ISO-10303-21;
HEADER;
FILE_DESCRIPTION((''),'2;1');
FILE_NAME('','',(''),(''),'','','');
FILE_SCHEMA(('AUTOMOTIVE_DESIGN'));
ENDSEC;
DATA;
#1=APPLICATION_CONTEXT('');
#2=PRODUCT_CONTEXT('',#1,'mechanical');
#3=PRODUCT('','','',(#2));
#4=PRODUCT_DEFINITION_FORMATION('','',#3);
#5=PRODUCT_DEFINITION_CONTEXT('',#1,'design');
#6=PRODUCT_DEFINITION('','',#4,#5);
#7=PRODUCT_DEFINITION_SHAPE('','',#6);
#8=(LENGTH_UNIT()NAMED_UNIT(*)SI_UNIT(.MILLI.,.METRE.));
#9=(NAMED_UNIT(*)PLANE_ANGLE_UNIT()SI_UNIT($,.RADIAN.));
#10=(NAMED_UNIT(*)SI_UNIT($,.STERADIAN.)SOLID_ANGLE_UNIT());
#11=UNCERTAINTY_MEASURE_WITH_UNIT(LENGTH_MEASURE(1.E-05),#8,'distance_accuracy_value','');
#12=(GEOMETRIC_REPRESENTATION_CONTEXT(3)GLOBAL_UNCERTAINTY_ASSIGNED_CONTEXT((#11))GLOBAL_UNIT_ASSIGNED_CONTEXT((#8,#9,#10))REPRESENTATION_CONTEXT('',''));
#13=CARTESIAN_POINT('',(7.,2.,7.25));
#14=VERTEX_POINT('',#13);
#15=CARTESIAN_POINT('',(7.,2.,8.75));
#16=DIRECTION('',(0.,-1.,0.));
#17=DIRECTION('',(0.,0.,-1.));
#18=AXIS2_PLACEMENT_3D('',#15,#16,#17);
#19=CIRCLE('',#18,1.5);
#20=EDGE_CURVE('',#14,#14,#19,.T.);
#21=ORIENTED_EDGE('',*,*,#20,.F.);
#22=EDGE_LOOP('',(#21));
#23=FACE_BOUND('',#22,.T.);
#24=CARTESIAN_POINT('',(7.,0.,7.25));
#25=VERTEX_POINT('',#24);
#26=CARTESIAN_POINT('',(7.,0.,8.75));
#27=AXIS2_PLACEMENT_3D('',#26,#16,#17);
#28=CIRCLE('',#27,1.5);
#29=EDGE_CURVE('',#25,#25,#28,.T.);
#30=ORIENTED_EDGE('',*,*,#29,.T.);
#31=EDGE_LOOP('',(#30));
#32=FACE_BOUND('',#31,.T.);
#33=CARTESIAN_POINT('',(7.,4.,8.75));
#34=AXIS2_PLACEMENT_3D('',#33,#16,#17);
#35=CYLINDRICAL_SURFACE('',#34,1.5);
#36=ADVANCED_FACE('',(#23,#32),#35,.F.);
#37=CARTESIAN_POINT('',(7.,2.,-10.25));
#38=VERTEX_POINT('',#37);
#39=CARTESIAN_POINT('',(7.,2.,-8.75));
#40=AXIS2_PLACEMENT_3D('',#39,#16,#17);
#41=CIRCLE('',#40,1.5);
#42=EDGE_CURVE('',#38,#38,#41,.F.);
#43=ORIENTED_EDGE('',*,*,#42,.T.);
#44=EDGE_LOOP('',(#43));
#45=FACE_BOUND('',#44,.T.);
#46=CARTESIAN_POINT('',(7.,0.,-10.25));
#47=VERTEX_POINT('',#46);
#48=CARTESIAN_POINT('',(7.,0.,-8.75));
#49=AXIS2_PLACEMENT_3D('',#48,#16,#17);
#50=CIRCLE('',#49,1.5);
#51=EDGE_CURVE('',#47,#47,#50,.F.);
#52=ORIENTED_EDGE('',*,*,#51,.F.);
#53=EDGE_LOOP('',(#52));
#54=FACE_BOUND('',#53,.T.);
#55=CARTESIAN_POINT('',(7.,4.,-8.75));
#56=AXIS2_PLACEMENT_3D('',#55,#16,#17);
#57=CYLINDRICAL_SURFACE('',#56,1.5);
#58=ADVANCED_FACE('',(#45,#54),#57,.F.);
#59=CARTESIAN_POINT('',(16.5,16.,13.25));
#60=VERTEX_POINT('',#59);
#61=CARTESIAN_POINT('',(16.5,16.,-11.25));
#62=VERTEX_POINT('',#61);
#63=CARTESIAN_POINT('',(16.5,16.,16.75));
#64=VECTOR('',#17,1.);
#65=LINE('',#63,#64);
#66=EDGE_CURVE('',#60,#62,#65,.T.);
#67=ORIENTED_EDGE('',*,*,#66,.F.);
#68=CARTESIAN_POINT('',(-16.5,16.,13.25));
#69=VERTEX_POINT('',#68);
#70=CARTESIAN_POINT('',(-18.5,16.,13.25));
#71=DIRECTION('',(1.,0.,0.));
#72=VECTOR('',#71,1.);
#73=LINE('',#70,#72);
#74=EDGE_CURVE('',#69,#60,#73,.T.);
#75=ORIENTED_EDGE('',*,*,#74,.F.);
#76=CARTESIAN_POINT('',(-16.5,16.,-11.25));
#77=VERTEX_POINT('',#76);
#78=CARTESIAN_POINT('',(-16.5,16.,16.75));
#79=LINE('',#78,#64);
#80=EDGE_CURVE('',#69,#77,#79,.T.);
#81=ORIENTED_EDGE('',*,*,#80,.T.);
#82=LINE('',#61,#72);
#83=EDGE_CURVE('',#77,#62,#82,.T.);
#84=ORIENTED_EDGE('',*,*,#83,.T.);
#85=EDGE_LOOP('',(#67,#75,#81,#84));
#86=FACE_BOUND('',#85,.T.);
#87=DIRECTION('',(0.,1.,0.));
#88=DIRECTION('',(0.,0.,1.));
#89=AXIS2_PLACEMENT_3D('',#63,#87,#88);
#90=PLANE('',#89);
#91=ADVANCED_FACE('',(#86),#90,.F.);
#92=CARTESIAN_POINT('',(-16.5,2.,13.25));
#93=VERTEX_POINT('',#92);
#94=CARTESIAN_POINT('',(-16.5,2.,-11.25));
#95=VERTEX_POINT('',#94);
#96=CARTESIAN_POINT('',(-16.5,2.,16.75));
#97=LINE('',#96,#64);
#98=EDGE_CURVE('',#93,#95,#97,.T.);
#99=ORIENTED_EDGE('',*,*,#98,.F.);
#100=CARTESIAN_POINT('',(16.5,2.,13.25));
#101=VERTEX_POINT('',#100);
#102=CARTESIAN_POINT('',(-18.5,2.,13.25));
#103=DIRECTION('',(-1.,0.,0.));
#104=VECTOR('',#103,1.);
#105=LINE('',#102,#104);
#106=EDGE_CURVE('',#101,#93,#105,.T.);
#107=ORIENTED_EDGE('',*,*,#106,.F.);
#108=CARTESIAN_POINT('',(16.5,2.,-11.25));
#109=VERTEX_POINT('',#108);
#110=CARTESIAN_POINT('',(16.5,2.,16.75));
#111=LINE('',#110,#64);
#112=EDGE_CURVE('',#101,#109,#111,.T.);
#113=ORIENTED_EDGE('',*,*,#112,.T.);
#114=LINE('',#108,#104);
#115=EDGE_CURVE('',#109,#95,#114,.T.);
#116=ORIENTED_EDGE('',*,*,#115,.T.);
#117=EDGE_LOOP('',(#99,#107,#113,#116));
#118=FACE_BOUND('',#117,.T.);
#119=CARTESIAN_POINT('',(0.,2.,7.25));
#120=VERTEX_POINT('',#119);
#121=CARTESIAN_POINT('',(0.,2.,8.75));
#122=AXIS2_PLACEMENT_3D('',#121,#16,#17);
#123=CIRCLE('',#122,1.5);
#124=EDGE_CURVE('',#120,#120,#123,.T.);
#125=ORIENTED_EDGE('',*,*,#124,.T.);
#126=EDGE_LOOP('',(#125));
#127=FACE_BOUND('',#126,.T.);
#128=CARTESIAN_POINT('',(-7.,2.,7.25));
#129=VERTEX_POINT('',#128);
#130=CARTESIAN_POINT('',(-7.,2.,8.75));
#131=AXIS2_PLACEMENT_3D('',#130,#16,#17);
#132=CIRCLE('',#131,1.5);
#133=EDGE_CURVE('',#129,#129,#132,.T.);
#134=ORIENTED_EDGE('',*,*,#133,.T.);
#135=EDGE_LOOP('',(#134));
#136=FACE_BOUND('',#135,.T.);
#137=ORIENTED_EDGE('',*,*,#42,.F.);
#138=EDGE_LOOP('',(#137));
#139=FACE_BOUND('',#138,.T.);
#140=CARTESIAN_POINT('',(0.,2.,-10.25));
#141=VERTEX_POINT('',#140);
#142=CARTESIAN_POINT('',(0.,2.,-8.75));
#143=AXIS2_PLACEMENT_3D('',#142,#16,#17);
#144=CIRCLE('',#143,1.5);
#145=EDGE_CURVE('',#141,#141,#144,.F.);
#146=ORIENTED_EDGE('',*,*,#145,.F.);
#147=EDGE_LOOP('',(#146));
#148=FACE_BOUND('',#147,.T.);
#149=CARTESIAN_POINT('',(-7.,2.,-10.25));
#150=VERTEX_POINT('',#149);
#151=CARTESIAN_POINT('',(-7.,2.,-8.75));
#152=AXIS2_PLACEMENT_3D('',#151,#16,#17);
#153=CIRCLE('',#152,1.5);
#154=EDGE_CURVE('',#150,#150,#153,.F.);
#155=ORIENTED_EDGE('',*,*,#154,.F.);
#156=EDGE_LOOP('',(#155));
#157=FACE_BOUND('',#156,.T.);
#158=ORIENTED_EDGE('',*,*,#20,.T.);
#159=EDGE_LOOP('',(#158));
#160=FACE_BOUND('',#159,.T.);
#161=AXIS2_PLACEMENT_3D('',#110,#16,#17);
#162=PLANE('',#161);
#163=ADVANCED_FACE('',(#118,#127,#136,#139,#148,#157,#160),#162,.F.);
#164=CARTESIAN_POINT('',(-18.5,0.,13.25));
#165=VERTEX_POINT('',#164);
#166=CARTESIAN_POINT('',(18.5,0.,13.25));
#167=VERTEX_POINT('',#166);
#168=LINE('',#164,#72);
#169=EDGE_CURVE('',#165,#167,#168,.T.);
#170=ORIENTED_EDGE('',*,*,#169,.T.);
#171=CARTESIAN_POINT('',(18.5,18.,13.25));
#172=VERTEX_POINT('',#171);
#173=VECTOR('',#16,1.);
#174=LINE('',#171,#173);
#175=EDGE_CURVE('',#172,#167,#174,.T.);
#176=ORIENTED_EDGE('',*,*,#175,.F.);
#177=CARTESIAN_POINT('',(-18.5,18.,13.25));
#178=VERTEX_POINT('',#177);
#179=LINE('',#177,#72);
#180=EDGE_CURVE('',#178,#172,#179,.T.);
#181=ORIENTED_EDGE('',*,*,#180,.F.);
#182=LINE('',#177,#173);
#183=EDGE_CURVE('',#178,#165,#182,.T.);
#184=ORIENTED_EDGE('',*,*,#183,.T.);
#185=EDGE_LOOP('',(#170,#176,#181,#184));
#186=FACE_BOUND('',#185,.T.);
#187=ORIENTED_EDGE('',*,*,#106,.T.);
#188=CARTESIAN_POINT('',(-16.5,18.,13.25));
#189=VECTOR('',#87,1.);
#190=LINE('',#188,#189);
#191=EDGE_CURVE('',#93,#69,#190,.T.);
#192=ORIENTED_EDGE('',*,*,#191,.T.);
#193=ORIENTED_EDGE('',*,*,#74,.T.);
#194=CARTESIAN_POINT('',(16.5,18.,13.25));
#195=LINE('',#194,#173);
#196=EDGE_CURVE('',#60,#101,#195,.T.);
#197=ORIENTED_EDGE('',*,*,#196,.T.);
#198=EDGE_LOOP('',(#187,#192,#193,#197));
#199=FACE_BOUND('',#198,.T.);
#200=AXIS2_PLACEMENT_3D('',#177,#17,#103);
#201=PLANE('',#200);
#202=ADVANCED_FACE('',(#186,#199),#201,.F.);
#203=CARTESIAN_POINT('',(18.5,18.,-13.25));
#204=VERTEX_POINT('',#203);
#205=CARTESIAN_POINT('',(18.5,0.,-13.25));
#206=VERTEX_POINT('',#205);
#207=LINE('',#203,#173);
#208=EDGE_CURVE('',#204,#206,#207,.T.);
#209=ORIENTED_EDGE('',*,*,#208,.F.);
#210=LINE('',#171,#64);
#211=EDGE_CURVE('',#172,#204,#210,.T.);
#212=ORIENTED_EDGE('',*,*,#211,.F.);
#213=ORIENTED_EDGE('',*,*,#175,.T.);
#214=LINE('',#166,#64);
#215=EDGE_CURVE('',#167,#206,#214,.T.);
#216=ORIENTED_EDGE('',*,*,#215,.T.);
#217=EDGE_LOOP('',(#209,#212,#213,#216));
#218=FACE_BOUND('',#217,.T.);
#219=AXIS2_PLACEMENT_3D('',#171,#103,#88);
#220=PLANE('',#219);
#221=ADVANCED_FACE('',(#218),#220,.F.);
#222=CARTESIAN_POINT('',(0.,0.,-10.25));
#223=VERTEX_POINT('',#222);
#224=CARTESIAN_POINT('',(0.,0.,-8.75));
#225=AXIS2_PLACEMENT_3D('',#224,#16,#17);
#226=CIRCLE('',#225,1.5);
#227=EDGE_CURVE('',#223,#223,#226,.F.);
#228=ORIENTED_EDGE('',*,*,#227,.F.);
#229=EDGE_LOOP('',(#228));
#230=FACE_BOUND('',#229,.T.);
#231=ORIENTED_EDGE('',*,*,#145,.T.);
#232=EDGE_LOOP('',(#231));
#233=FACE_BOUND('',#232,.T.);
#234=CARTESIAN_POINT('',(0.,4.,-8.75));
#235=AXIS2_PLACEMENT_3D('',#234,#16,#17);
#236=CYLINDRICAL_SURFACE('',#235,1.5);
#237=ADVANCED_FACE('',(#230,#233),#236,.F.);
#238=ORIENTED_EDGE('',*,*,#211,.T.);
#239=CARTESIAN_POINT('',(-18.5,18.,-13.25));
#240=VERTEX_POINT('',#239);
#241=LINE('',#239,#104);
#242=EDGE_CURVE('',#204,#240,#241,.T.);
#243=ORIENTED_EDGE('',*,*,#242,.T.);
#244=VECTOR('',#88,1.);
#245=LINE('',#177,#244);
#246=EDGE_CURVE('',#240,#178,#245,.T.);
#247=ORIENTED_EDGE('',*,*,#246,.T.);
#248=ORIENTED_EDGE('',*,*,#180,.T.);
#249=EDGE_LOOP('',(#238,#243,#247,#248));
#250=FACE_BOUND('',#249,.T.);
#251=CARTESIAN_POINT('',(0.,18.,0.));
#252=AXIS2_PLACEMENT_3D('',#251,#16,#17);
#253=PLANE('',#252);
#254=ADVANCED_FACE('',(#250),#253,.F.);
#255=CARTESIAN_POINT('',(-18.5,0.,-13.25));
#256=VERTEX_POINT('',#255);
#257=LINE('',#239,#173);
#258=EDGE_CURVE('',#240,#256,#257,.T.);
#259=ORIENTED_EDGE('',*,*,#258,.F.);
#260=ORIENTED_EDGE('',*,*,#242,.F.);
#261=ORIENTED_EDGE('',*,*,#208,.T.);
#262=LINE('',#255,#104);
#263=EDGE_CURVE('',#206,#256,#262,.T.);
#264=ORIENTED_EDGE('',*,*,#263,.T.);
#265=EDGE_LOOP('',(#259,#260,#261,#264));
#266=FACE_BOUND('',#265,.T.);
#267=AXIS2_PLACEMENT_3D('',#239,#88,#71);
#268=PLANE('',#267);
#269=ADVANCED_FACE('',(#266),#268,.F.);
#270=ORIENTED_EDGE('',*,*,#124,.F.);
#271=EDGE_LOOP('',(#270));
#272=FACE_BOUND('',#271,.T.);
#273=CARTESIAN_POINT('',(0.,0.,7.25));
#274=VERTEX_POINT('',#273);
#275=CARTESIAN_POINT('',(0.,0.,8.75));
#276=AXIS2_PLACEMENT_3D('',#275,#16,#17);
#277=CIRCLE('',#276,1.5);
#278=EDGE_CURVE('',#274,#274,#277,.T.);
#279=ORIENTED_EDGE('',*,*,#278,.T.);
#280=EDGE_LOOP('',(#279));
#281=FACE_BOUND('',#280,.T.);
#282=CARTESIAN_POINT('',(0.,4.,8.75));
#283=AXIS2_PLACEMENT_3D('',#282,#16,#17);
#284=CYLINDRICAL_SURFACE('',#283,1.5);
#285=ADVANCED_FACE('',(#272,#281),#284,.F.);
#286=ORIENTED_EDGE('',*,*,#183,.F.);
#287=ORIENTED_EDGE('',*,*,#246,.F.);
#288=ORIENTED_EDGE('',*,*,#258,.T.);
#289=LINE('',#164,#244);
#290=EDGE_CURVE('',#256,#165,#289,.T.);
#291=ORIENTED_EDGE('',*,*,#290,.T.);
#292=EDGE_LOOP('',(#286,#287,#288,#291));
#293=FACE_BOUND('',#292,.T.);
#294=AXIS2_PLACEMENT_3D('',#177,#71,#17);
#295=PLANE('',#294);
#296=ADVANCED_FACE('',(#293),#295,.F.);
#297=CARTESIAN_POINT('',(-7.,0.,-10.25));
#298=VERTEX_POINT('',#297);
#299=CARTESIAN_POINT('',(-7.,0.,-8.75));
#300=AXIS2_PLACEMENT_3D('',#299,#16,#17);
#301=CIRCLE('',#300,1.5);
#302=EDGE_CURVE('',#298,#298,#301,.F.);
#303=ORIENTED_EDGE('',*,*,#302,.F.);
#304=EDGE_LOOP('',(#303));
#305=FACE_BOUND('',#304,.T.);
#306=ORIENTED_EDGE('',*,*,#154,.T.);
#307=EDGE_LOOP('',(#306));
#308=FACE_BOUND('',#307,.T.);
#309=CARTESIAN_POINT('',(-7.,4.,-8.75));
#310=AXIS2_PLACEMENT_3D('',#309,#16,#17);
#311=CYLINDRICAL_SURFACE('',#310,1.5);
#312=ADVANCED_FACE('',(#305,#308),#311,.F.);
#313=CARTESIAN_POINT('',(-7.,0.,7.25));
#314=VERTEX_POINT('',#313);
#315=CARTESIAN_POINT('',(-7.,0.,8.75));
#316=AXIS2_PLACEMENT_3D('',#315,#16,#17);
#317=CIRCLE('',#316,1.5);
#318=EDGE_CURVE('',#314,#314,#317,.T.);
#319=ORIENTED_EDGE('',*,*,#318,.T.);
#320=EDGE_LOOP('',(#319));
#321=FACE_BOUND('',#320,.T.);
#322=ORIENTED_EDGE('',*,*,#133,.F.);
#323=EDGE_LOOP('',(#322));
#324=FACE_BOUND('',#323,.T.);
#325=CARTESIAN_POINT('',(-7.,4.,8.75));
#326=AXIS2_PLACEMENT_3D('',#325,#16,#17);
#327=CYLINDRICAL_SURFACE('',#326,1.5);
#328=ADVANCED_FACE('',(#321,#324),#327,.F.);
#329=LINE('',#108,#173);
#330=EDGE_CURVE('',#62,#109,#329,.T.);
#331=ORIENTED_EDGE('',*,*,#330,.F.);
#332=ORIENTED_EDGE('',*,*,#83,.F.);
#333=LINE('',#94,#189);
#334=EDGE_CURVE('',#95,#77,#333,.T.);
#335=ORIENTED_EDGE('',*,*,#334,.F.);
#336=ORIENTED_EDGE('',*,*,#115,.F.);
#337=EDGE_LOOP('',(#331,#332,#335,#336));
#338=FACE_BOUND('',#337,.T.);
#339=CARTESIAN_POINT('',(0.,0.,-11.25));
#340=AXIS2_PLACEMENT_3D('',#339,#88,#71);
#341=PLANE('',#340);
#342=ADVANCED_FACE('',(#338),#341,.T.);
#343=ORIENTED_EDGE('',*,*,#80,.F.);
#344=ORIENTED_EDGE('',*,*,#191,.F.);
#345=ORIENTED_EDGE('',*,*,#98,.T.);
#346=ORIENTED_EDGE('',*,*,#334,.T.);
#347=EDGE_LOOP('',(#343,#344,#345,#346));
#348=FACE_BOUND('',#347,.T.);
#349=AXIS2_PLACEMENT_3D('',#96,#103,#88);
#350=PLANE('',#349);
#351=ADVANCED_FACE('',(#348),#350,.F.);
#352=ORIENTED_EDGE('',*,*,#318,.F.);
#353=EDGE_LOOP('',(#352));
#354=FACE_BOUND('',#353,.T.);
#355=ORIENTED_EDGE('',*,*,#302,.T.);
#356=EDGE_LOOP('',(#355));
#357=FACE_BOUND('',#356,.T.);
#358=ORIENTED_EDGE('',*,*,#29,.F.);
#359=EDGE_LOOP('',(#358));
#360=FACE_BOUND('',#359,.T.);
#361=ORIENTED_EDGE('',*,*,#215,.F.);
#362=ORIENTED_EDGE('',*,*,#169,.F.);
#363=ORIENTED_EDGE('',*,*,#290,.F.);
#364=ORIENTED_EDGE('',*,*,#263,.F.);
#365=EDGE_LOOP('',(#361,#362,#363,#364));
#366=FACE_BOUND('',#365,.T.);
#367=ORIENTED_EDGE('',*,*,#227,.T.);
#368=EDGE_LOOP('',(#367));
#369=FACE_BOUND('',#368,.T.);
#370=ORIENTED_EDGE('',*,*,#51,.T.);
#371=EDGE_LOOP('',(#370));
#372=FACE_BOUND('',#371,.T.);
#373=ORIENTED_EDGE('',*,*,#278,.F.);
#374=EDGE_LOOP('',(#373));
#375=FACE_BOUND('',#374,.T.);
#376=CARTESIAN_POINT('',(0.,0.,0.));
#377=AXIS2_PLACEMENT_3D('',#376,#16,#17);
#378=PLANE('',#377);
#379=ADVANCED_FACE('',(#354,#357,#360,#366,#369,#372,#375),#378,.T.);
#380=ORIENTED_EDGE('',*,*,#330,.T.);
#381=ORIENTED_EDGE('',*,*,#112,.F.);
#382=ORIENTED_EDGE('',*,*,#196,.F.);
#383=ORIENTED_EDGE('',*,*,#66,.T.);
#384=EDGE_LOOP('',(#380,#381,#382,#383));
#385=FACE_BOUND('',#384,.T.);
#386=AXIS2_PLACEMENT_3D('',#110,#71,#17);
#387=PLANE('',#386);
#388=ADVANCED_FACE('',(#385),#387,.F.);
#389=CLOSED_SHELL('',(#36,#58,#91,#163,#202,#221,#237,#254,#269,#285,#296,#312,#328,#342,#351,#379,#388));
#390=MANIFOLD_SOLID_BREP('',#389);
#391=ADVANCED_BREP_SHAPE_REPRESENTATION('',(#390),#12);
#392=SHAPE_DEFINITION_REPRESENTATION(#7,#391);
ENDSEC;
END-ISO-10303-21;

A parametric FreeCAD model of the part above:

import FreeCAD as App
import Part
import Sketcher

doc = App.newDocument("Part")
body = doc.addObject("PartDesign::Body", "Body")

# Sketch on XZ plane
sketch1 = body.newObject("Sketcher::SketchObject", "Sketch")
sketch1.AttachmentSupport = (doc.getObject("XZ_Plane"), [""])
sketch1.MapMode = "FlatFace"
sketch1.addGeometry([
    Part.LineSegment(App.Vector(-18.5, -13.25, 0), App.Vector(-18.5, 13.25, 0)),
    Part.LineSegment(App.Vector(-18.5, 13.25, 0), App.Vector(18.5, 13.25, 0)),
    Part.LineSegment(App.Vector(18.5, 13.25, 0), App.Vector(18.5, -13.25, 0)),
    Part.LineSegment(App.Vector(18.5, -13.25, 0), App.Vector(-18.5, -13.25, 0)),
], False)
sketch1.addConstraint([
    Sketcher.Constraint("Coincident", 0, 2, 1, 1),
    Sketcher.Constraint("Coincident", 1, 2, 2, 1),
    Sketcher.Constraint("Coincident", 2, 2, 3, 1),
    Sketcher.Constraint("Coincident", 3, 2, 0, 1),
    Sketcher.Constraint("Vertical", 0),
    Sketcher.Constraint("Horizontal", 1),
    Sketcher.Constraint("Vertical", 2),
    Sketcher.Constraint("Horizontal", 3),
    Sketcher.Constraint("Symmetric", 0, 2, 2, 2, -1, 1),
    Sketcher.Constraint("DistanceX", 1, 1, 1, 2, 37.0),
    Sketcher.Constraint("DistanceY", 0, 1, 0, 2, 26.5),
])
pad1 = body.newObject("PartDesign::Pad", "Pad")
pad1.Profile = sketch1
pad1.Length = 18
pad1.Reversed = True

# Sketch on XY plane
sketch2 = body.newObject("Sketcher::SketchObject", "Sketch001")
sketch2.AttachmentSupport = (doc.getObject("XY_Plane"), [""])
sketch2.MapMode = "FlatFace"
sketch2.AttachmentOffset = App.Placement(App.Vector(0, 0, -11.25), App.Rotation())
sketch2.addGeometry([
    Part.LineSegment(App.Vector(16.5, 16, 0), App.Vector(16.5, 2, 0)),
    Part.LineSegment(App.Vector(16.5, 2, 0), App.Vector(-16.5, 2, 0)),
    Part.LineSegment(App.Vector(-16.5, 2, 0), App.Vector(-16.5, 16, 0)),
    Part.LineSegment(App.Vector(-16.5, 16, 0), App.Vector(16.5, 16, 0)),
], False)
sketch2.addConstraint([
    Sketcher.Constraint("Coincident", 0, 2, 1, 1),
    Sketcher.Constraint("Coincident", 1, 2, 2, 1),
    Sketcher.Constraint("Coincident", 2, 2, 3, 1),
    Sketcher.Constraint("Coincident", 3, 2, 0, 1),
    Sketcher.Constraint("Vertical", 0),
    Sketcher.Constraint("Horizontal", 1),
    Sketcher.Constraint("Vertical", 2),
    Sketcher.Constraint("Horizontal", 3),
    Sketcher.Constraint("DistanceX", 1, 2, 1, 1, 33.0),
    Sketcher.Constraint("DistanceY", 0, 2, 0, 1, 14.0),
    Sketcher.Constraint("DistanceY", -1, 1, 0, 2, 2.0),
    Sketcher.Constraint("DistanceX", -1, 1, 0, 2, 16.5),
])
pocket1 = body.newObject("PartDesign::Pocket", "Pocket")
pocket1.Profile = sketch2
pocket1.Length = 28
pocket1.Reversed = True

# Sketch on XZ plane
sketch3 = body.newObject("Sketcher::SketchObject", "Sketch002")
sketch3.AttachmentSupport = (doc.getObject("XZ_Plane"), [""])
sketch3.MapMode = "FlatFace"
sketch3.addGeometry([
    Part.Circle(App.Vector(-7, 8.75, 0), App.Vector(0, 0, 1), 1.5),
    Part.Circle(App.Vector(7, 8.75, 0), App.Vector(0, 0, 1), 1.5),
    Part.Circle(App.Vector(0, 8.75, 0), App.Vector(0, 0, 1), 1.5),
], False)
sketch3.addConstraint([
    Sketcher.Constraint("Equal", 0, 1),
    Sketcher.Constraint("Equal", 1, 2),
    Sketcher.Constraint("Symmetric", 0, 3, 1, 3, -2),
    Sketcher.Constraint("PointOnObject", 2, 3, -2),
    Sketcher.Constraint("Horizontal", 1, 3, 2, 3),
    Sketcher.Constraint("Diameter", 0, 3.0),
    Sketcher.Constraint("DistanceX", 0, 3, -1, 1, 7.0),
    Sketcher.Constraint("DistanceY", -1, 1, 0, 3, 8.75),
])
pocket2 = body.newObject("PartDesign::Pocket", "Pocket001")
pocket2.Profile = sketch3
pocket2.Length = 8
pocket2.Midplane = True
doc.recompute()

mirrored = body.newObject("PartDesign::Mirrored", "Mirrored")
mirrored.Originals = [pocket2]
mirrored.MirrorPlane = (doc.getObject("XY_Plane"), [""])
body.Tip = mirrored

doc.recompute()
